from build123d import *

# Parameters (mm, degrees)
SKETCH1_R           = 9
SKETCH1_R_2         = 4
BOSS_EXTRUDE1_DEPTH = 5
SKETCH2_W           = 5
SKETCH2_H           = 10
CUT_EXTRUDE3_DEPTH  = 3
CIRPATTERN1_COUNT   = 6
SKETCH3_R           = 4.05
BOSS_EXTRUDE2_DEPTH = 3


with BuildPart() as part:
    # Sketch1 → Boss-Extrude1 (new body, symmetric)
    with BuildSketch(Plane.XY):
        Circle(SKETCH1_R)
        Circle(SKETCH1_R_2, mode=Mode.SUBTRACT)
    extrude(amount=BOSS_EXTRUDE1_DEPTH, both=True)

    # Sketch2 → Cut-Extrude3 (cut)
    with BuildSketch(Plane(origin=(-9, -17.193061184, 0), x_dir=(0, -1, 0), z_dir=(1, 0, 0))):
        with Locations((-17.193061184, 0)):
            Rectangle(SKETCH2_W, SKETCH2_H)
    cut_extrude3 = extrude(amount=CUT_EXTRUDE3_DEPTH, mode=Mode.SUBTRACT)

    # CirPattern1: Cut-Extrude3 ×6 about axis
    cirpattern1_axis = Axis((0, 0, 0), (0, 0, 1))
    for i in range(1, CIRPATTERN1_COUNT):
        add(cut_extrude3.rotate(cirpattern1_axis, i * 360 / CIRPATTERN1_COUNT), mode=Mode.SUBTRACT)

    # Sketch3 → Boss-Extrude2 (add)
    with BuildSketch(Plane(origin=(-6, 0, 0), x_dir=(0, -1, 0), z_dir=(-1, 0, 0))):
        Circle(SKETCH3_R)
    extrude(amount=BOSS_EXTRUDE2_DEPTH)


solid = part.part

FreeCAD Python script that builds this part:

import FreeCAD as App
import Part
import Sketcher
from FreeCAD import Vector

doc = App.newDocument("Part")
body = doc.addObject("PartDesign::Body", "Body")

# Sketch on XY plane
sketch1 = body.newObject("Sketcher::SketchObject", "Sketch")
sketch1.AttachmentSupport = (doc.getObject("XY_Plane"), [""])
sketch1.MapMode = "FlatFace"
sketch1.addGeometry(Part.Circle(Vector(0, 0, 0), Vector(0, 0, 1), 9), False)
sketch1.addGeometry(Part.Circle(Vector(0, 0, 0), Vector(0, 0, 1), 4), False)
sketch1.addConstraint(Sketcher.Constraint("Coincident", 0, 3, -1, 1))
sketch1.addConstraint(Sketcher.Constraint("Coincident", 1, 3, -1, 1))
sketch1.addConstraint(Sketcher.Constraint("Diameter", 0, 18.0))
sketch1.addConstraint(Sketcher.Constraint("Diameter", 1, 8.0))
pad1 = body.newObject("PartDesign::Pad", "Pad")
pad1.Profile = sketch1
pad1.Length = 10
pad1.Midplane = True

# Sketch on YZ plane
sketch2 = body.newObject("Sketcher::SketchObject", "Sketch001")
sketch2.AttachmentSupport = (doc.getObject("YZ_Plane"), [""])
sketch2.MapMode = "FlatFace"
sketch2.AttachmentOffset = App.Placement(Vector(0, 0, -9), App.Rotation())
sketch2.addGeometry(Part.LineSegment(Vector(2, -5, 0), Vector(2, 5, 0)), False)
sketch2.addGeometry(Part.LineSegment(Vector(2, 5, 0), Vector(-2, 5, 0)), False)
sketch2.addGeometry(Part.LineSegment(Vector(-2, 5, 0), Vector(-2, -5, 0)), False)
sketch2.addGeometry(Part.LineSegment(Vector(-2, -5, 0), Vector(2, -5, 0)), False)
sketch2.addConstraint(Sketcher.Constraint("Coincident", 0, 2, 1, 1))
sketch2.addConstraint(Sketcher.Constraint("Coincident", 1, 2, 2, 1))
sketch2.addConstraint(Sketcher.Constraint("Coincident", 2, 2, 3, 1))
sketch2.addConstraint(Sketcher.Constraint("Coincident", 3, 2, 0, 1))
sketch2.addConstraint(Sketcher.Constraint("Vertical", 0))
sketch2.addConstraint(Sketcher.Constraint("Horizontal", 1))
sketch2.addConstraint(Sketcher.Constraint("Vertical", 2))
sketch2.addConstraint(Sketcher.Constraint("Horizontal", 3))
sketch2.addConstraint(Sketcher.Constraint("Symmetric", 0, 2, 2, 2, -1, 1))
sketch2.addConstraint(Sketcher.Constraint("DistanceX", 1, 2, 1, 1, 5.0))
sketch2.addConstraint(Sketcher.Constraint("DistanceY", 0, 1, 0, 2, 10.0))
pocket1 = body.newObject("PartDesign::Pocket", "Pocket")
pocket1.Profile = sketch2
pocket1.Length = 3
pocket1.Reversed = True
doc.recompute()

polarpattern = body.newObject("PartDesign::PolarPattern", "PolarPattern")
polarpattern.Originals = [pocket1]
polarpattern.Axis = (doc.getObject("Z_Axis"), [""])
polarpattern.Angle = 360
polarpattern.Occurrences = 6
body.Tip = polarpattern

# Sketch on YZ plane
sketch3 = body.newObject("Sketcher::SketchObject", "Sketch002")
sketch3.AttachmentSupport = (doc.getObject("YZ_Plane"), [""])
sketch3.MapMode = "FlatFace"
sketch3.AttachmentOffset = App.Placement(Vector(0, 0, -6), App.Rotation())
sketch3.addGeometry(Part.Circle(Vector(0, 0, 0), Vector(0, 0, 1), 4), False)
sketch3.addConstraint(Sketcher.Constraint("Coincident", 0, 3, -1, 1))
sketch3.addConstraint(Sketcher.Constraint("Diameter", 0, 8.1))
pad2 = body.newObject("PartDesign::Pad", "Pad001")
pad2.Profile = sketch3
pad2.Length = 3
pad2.Reversed = True

doc.recompute()
